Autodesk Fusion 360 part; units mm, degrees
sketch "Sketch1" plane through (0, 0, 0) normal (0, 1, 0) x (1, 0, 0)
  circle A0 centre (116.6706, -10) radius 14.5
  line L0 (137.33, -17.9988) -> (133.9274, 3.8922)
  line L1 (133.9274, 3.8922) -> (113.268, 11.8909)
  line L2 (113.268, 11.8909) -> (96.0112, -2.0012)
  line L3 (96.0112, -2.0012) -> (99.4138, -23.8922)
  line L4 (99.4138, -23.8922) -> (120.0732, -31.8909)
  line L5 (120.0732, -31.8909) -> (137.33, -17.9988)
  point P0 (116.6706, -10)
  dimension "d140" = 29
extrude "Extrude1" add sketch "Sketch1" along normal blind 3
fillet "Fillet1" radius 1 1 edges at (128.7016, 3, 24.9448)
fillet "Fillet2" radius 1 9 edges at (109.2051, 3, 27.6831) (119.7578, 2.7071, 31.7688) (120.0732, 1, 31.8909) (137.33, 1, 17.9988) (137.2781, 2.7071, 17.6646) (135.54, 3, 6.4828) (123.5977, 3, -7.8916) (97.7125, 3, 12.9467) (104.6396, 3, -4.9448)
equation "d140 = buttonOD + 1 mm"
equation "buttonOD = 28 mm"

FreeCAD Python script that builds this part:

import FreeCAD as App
import Part
import Sketcher
from FreeCAD import Vector
Q = App.Units.Quantity


def edges_at(feature, points):
    """Names of the edges that pass closest to the given points."""
    edges = feature.Shape.Edges
    near = lambda p: min(range(len(edges)), key=lambda i: edges[i].distToShape(Part.Vertex(*p))[0])
    return sorted({f"Edge{near(p) + 1}" for p in points})


def add_polygon(sketch, points):
    """Adds a closed chain of lines whose ends are joined by coincident constraints."""
    first, n = sketch.GeometryCount, len(points)
    for a, b in zip(points, points[1:] + points[:1]):
        sketch.addGeometry(Part.LineSegment(App.Vector(*a, 0), App.Vector(*b, 0)), False)
    for i in range(n):
        sketch.addConstraint(Sketcher.Constraint("Coincident", first + i, 2, first + (i + 1) % n, 1))

doc = App.newDocument("Part")
body = doc.addObject("PartDesign::Body", "Body")

# Sketch on XZ plane
sketch1 = body.newObject("Sketcher::SketchObject", "Sketch")
sketch1.AttachmentSupport = (doc.getObject("XZ_Plane"), [""])
sketch1.MapMode = "FlatFace"
add_polygon(sketch1, [(120, 32), (137, 18), (134, -4), (113, -12), (96, 2), (99, 24)])  # lines 0-5
sketch1.addGeometry(Part.Circle(Vector(117, 10, 0), Vector(0, 0, 1), 14), False)  # 6
sketch1.addConstraint([
    Sketcher.Constraint("Parallel", 0, 3),
    Sketcher.Constraint("Parallel", 1, 4),
    Sketcher.Constraint("Parallel", 2, 5),
    Sketcher.Constraint("Equal", 0, 1),
    Sketcher.Constraint("Equal", 1, 2),
    Sketcher.Constraint("Equal", 2, 3),
    Sketcher.Constraint("Diameter", 6, Q("29 mm")),
    Sketcher.Constraint("DistanceY", -1, 1, 6, 3, Q("10 mm")),
    Sketcher.Constraint("DistanceX", -1, 1, 0, 2, Q("137.33 mm")),
    Sketcher.Constraint("DistanceX", -1, 1, 2, 2, Q("113.268 mm")),
    Sketcher.Constraint("DistanceY", 2, 2, -1, 1, Q("11.891 mm")),
    Sketcher.Constraint("DistanceY", -1, 1, 5, 2, Q("31.891 mm")),
    Sketcher.Constraint("DistanceY", 1, 2, 0, 2, Q("21.891 mm")),
    Sketcher.Constraint("DistanceY", 2, 2, 3, 2, Q("13.892 mm")),
    Sketcher.Constraint("DistanceX", -1, 1, 6, 3, Q("116.6706 mm")),
])
pad1 = body.newObject("PartDesign::Pad", "Pad")
pad1.Profile = sketch1
pad1.Length = 3
pad1.Reversed = True
doc.recompute()

fillet = body.newObject("PartDesign::Fillet", "Fillet")
fillet.Base = (pad1, edges_at(pad1, [(128.702, 3, 24.945)]))
fillet.Radius = 1
doc.recompute()

fillet2 = body.newObject("PartDesign::Fillet", "Fillet001")
fillet2.Base = (fillet, edges_at(fillet, [
    (109.205, 3, 27.683),
    (119.758, 2.707, 31.769),
    (120.073, 1, 31.891),
    (137.33, 1, 17.999),
    (137.278, 2.707, 17.665),
    (135.54, 3, 6.483),
    (123.598, 3, -7.892),
    (97.713, 3, 12.947),
    (104.64, 3, -4.945),
]))
fillet2.Radius = 1

doc.recompute()
